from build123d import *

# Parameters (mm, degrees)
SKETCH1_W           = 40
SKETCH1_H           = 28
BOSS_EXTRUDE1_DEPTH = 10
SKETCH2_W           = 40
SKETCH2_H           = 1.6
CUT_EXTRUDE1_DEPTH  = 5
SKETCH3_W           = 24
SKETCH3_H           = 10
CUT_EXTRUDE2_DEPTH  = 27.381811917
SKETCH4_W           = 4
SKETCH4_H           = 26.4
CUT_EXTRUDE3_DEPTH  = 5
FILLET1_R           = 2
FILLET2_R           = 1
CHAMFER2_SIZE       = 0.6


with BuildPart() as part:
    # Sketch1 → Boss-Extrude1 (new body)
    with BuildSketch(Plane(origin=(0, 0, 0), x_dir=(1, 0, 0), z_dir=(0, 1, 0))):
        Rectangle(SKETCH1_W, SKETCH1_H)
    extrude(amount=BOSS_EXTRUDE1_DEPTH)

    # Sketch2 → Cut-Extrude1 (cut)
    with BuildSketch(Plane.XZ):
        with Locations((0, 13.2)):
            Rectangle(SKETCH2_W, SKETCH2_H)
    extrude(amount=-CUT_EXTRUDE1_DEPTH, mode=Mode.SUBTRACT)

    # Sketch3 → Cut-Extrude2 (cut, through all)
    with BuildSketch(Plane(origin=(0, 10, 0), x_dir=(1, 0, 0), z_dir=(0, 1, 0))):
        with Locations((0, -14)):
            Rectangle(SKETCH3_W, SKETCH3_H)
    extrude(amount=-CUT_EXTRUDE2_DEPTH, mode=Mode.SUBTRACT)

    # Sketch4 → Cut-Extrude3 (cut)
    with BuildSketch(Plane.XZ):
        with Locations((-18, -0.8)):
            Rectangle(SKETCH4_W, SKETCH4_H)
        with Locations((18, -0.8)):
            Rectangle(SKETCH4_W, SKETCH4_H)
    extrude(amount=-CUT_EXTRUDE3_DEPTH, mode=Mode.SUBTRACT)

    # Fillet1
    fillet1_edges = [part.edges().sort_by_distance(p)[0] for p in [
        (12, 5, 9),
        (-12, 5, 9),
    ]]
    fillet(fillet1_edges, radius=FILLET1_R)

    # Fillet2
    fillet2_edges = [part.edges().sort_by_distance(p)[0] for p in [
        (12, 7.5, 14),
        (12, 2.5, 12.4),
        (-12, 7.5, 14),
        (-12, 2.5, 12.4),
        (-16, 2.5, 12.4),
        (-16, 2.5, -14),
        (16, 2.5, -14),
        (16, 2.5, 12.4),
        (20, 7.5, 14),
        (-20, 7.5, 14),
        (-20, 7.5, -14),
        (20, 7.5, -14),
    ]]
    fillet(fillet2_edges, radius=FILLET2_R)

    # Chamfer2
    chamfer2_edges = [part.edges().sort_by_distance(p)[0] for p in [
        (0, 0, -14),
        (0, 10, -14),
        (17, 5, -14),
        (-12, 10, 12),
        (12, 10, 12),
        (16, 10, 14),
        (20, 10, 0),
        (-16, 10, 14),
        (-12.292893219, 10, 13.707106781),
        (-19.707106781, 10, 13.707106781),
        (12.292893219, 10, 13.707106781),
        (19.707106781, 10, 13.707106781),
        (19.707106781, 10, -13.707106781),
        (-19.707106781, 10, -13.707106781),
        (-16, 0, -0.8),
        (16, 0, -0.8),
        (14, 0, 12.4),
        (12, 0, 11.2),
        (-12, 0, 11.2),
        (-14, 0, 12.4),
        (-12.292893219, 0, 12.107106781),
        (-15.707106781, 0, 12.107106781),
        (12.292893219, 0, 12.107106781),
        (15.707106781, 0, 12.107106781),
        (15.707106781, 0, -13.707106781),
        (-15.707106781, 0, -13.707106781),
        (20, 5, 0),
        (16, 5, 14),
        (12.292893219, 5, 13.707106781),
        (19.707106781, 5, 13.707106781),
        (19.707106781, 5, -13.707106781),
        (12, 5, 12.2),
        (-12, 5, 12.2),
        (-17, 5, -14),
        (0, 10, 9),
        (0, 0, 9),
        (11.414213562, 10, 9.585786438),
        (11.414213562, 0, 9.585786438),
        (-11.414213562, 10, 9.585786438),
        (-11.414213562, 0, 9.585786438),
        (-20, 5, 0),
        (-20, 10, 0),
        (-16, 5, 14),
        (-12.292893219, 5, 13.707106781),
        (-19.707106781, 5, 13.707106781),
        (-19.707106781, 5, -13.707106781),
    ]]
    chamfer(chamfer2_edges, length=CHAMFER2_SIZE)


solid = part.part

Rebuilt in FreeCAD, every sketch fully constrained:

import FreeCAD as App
import Part
import Sketcher
Q = App.Units.Quantity


def edges_at(feature, points):
    """Names of the edges that pass closest to the given points."""
    edges = feature.Shape.Edges
    near = lambda p: min(range(len(edges)), key=lambda i: edges[i].distToShape(Part.Vertex(*p))[0])
    return sorted({f"Edge{near(p) + 1}" for p in points})

doc = App.newDocument("Part")
body = doc.addObject("PartDesign::Body", "Body")

# Sketch on XZ plane
sketch1 = doc.addObject("Sketcher::SketchObject", "Sketch")
body.addObject(sketch1)
sketch1.AttachmentSupport = (doc.XZ_Plane, [""])
sketch1.MapMode = "FlatFace"
sketch1.addGeometry(Part.LineSegment(App.Vector(-20, -14, 0), App.Vector(-20, 14, 0)), False)
sketch1.addGeometry(Part.LineSegment(App.Vector(-20, 14, 0), App.Vector(20, 14, 0)), False)
sketch1.addGeometry(Part.LineSegment(App.Vector(20, 14, 0), App.Vector(20, -14, 0)), False)
sketch1.addGeometry(Part.LineSegment(App.Vector(20, -14, 0), App.Vector(-20, -14, 0)), False)
sketch1.addConstraint(Sketcher.Constraint("Coincident", 0, 2, 1, 1))
sketch1.addConstraint(Sketcher.Constraint("Coincident", 1, 2, 2, 1))
sketch1.addConstraint(Sketcher.Constraint("Coincident", 2, 2, 3, 1))
sketch1.addConstraint(Sketcher.Constraint("Coincident", 3, 2, 0, 1))
sketch1.addConstraint(Sketcher.Constraint("Vertical", 0))
sketch1.addConstraint(Sketcher.Constraint("Horizontal", 1))
sketch1.addConstraint(Sketcher.Constraint("Vertical", 2))
sketch1.addConstraint(Sketcher.Constraint("Horizontal", 3))
sketch1.addConstraint(Sketcher.Constraint("Symmetric", 0, 2, 2, 2, -1, 1))
sketch1.addConstraint(Sketcher.Constraint("DistanceX", 1, 1, 1, 2, Q("40 mm")))
sketch1.addConstraint(Sketcher.Constraint("DistanceY", 0, 1, 0, 2, Q("28 mm")))
pad1 = doc.addObject("PartDesign::Pad", "Pad")
body.addObject(pad1)
pad1.Profile = sketch1
pad1.Length = 10
pad1.Reversed = True

# Sketch on XZ plane
sketch2 = doc.addObject("Sketcher::SketchObject", "Sketch001")
body.addObject(sketch2)
sketch2.AttachmentSupport = (doc.XZ_Plane, [""])
sketch2.MapMode = "FlatFace"
sketch2.addGeometry(Part.LineSegment(App.Vector(-20, 14, 0), App.Vector(-20, 12.4, 0)), False)
sketch2.addGeometry(Part.LineSegment(App.Vector(-20, 12.4, 0), App.Vector(20, 12.4, 0)), False)
sketch2.addGeometry(Part.LineSegment(App.Vector(20, 12.4, 0), App.Vector(20, 14, 0)), False)
sketch2.addGeometry(Part.LineSegment(App.Vector(20, 14, 0), App.Vector(-20, 14, 0)), False)
sketch2.addConstraint(Sketcher.Constraint("Coincident", 0, 2, 1, 1))
sketch2.addConstraint(Sketcher.Constraint("Coincident", 1, 2, 2, 1))
sketch2.addConstraint(Sketcher.Constraint("Coincident", 2, 2, 3, 1))
sketch2.addConstraint(Sketcher.Constraint("Coincident", 3, 2, 0, 1))
sketch2.addConstraint(Sketcher.Constraint("Vertical", 0))
sketch2.addConstraint(Sketcher.Constraint("Horizontal", 1))
sketch2.addConstraint(Sketcher.Constraint("Vertical", 2))
sketch2.addConstraint(Sketcher.Constraint("Horizontal", 3))
sketch2.addConstraint(Sketcher.Constraint("DistanceX", 1, 1, 1, 2, Q("40 mm")))
sketch2.addConstraint(Sketcher.Constraint("DistanceY", 0, 2, 0, 1, Q("1.6 mm")))
sketch2.addConstraint(Sketcher.Constraint("DistanceX", 0, 2, -1, 1, Q("20 mm")))
sketch2.addConstraint(Sketcher.Constraint("DistanceY", -1, 1, 2, 2, Q("14 mm")))
pocket1 = doc.addObject("PartDesign::Pocket", "Pocket")
body.addObject(pocket1)
pocket1.Profile = sketch2
pocket1.Length = 5

# Sketch on XZ plane
sketch3 = doc.addObject("Sketcher::SketchObject", "Sketch002")
body.addObject(sketch3)
sketch3.AttachmentSupport = (doc.XZ_Plane, [""])
sketch3.MapMode = "FlatFace"
sketch3.AttachmentOffset = App.Placement(App.Vector(0, 0, -10), App.Rotation())
sketch3.addGeometry(Part.LineSegment(App.Vector(-12, 9, 0), App.Vector(-12, 19, 0)), False)
sketch3.addGeometry(Part.LineSegment(App.Vector(-12, 19, 0), App.Vector(12, 19, 0)), False)
sketch3.addGeometry(Part.LineSegment(App.Vector(12, 19, 0), App.Vector(12, 9, 0)), False)
sketch3.addGeometry(Part.LineSegment(App.Vector(12, 9, 0), App.Vector(-12, 9, 0)), False)
sketch3.addConstraint(Sketcher.Constraint("Coincident", 0, 2, 1, 1))
sketch3.addConstraint(Sketcher.Constraint("Coincident", 1, 2, 2, 1))
sketch3.addConstraint(Sketcher.Constraint("Coincident", 2, 2, 3, 1))
sketch3.addConstraint(Sketcher.Constraint("Coincident", 3, 2, 0, 1))
sketch3.addConstraint(Sketcher.Constraint("Vertical", 0))
sketch3.addConstraint(Sketcher.Constraint("Horizontal", 1))
sketch3.addConstraint(Sketcher.Constraint("Vertical", 2))
sketch3.addConstraint(Sketcher.Constraint("Horizontal", 3))
sketch3.addConstraint(Sketcher.Constraint("DistanceX", 1, 1, 1, 2, Q("24 mm")))
sketch3.addConstraint(Sketcher.Constraint("DistanceY", 0, 1, 0, 2, Q("10 mm")))
sketch3.addConstraint(Sketcher.Constraint("DistanceX", 0, 2, -1, 1, Q("12 mm")))
sketch3.addConstraint(Sketcher.Constraint("DistanceY", -1, 1, 0, 2, Q("19 mm")))
pocket2 = doc.addObject("PartDesign::Pocket", "Pocket001")
body.addObject(pocket2)
pocket2.Profile = sketch3
pocket2.Type = "ThroughAll"
pocket2.Reversed = True

# Sketch on XZ plane
sketch4 = doc.addObject("Sketcher::SketchObject", "Sketch003")
body.addObject(sketch4)
sketch4.AttachmentSupport = (doc.XZ_Plane, [""])
sketch4.MapMode = "FlatFace"
sketch4.addGeometry(Part.LineSegment(App.Vector(-20, 12.4, 0), App.Vector(-20, -14, 0)), False)
sketch4.addGeometry(Part.LineSegment(App.Vector(-20, -14, 0), App.Vector(-16, -14, 0)), False)
sketch4.addGeometry(Part.LineSegment(App.Vector(-16, -14, 0), App.Vector(-16, 12.4, 0)), False)
sketch4.addGeometry(Part.LineSegment(App.Vector(-16, 12.4, 0), App.Vector(-20, 12.4, 0)), False)
sketch4.addGeometry(Part.LineSegment(App.Vector(16, 12.4, 0), App.Vector(16, -14, 0)), False)
sketch4.addGeometry(Part.LineSegment(App.Vector(16, -14, 0), App.Vector(20, -14, 0)), False)
sketch4.addGeometry(Part.LineSegment(App.Vector(20, -14, 0), App.Vector(20, 12.4, 0)), False)
sketch4.addGeometry(Part.LineSegment(App.Vector(20, 12.4, 0), App.Vector(16, 12.4, 0)), False)
sketch4.addConstraint(Sketcher.Constraint("Coincident", 0, 2, 1, 1))
sketch4.addConstraint(Sketcher.Constraint("Coincident", 1, 2, 2, 1))
sketch4.addConstraint(Sketcher.Constraint("Coincident", 2, 2, 3, 1))
sketch4.addConstraint(Sketcher.Constraint("Coincident", 3, 2, 0, 1))
sketch4.addConstraint(Sketcher.Constraint("Coincident", 4, 2, 5, 1))
sketch4.addConstraint(Sketcher.Constraint("Coincident", 5, 2, 6, 1))
sketch4.addConstraint(Sketcher.Constraint("Coincident", 6, 2, 7, 1))
sketch4.addConstraint(Sketcher.Constraint("Coincident", 7, 2, 4, 1))
sketch4.addConstraint(Sketcher.Constraint("Vertical", 0))
sketch4.addConstraint(Sketcher.Constraint("Horizontal", 1))
sketch4.addConstraint(Sketcher.Constraint("Vertical", 2))
sketch4.addConstraint(Sketcher.Constraint("Horizontal", 3))
sketch4.addConstraint(Sketcher.Constraint("Vertical", 4))
sketch4.addConstraint(Sketcher.Constraint("Horizontal", 5))
sketch4.addConstraint(Sketcher.Constraint("Vertical", 6))
sketch4.addConstraint(Sketcher.Constraint("Horizontal", 7))
sketch4.addConstraint(Sketcher.Constraint("Symmetric", 1, 2, 4, 2, -2))
sketch4.addConstraint(Sketcher.Constraint("Symmetric", 3, 2, 6, 2, -2))
sketch4.addConstraint(Sketcher.Constraint("DistanceX", 1, 1, 1, 2, Q("4 mm")))
sketch4.addConstraint(Sketcher.Constraint("DistanceY", 0, 2, 0, 1, Q("26.4 mm")))
sketch4.addConstraint(Sketcher.Constraint("DistanceX", 0, 2, -1, 1, Q("20 mm")))
sketch4.addConstraint(Sketcher.Constraint("DistanceY", 0, 2, -1, 1, Q("14 mm")))
pocket3 = doc.addObject("PartDesign::Pocket", "Pocket002")
body.addObject(pocket3)
pocket3.Profile = sketch4
pocket3.Length = 5
doc.recompute()

fillet = doc.addObject("PartDesign::Fillet", "Fillet")
body.addObject(fillet)
fillet.Base = (pocket3, edges_at(pocket3, [(12, 5, 9), (-12, 5, 9)]))
fillet.Radius = 2
doc.recompute()

fillet2 = doc.addObject("PartDesign::Fillet", "Fillet001")
body.addObject(fillet2)
fillet2.Base = (fillet, edges_at(fillet, [
    (12, 7.5, 14),
    (12, 2.5, 12.4),
    (-12, 7.5, 14),
    (-12, 2.5, 12.4),
    (-16, 2.5, 12.4),
    (-16, 2.5, -14),
    (16, 2.5, -14),
    (16, 2.5, 12.4),
    (20, 7.5, 14),
    (-20, 7.5, 14),
    (-20, 7.5, -14),
    (20, 7.5, -14),
]))
fillet2.Radius = 1
doc.recompute()

chamfer = doc.addObject("PartDesign::Chamfer", "Chamfer")
body.addObject(chamfer)
chamfer.Base = (fillet2, edges_at(fillet2, [
    (0, 0, -14),
    (0, 10, -14),
    (17, 5, -14),
    (-12, 10, 12),
    (12, 10, 12),
    (16, 10, 14),
    (20, 10, 0),
    (-16, 10, 14),
    (-12.293, 10, 13.707),
    (-19.707, 10, 13.707),
    (12.293, 10, 13.707),
    (19.707, 10, 13.707),
    (19.707, 10, -13.707),
    (-19.707, 10, -13.707),
    (-16, 0, -0.8),
    (16, 0, -0.8),
    (14, 0, 12.4),
    (12, 0, 11.2),
    (-12, 0, 11.2),
    (-14, 0, 12.4),
    (-12.293, 0, 12.107),
    (-15.707, 0, 12.107),
    (12.293, 0, 12.107),
    (15.707, 0, 12.107),
    (15.707, 0, -13.707),
    (-15.707, 0, -13.707),
    (20, 5, 0),
    (16, 5, 14),
    (12.293, 5, 13.707),
    (19.707, 5, 13.707),
    (19.707, 5, -13.707),
    (12, 5, 12.2),
    (-12, 5, 12.2),
    (-17, 5, -14),
    (0, 10, 9),
    (0, 0, 9),
    (11.414, 10, 9.586),
    (11.414, 0, 9.586),
    (-11.414, 10, 9.586),
    (-11.414, 0, 9.586),
    (-20, 5, 0),
    (-20, 10, 0),
    (-16, 5, 14),
    (-12.293, 5, 13.707),
    (-19.707, 5, 13.707),
    (-19.707, 5, -13.707),
]))
chamfer.Size = 0.6

doc.recompute()
